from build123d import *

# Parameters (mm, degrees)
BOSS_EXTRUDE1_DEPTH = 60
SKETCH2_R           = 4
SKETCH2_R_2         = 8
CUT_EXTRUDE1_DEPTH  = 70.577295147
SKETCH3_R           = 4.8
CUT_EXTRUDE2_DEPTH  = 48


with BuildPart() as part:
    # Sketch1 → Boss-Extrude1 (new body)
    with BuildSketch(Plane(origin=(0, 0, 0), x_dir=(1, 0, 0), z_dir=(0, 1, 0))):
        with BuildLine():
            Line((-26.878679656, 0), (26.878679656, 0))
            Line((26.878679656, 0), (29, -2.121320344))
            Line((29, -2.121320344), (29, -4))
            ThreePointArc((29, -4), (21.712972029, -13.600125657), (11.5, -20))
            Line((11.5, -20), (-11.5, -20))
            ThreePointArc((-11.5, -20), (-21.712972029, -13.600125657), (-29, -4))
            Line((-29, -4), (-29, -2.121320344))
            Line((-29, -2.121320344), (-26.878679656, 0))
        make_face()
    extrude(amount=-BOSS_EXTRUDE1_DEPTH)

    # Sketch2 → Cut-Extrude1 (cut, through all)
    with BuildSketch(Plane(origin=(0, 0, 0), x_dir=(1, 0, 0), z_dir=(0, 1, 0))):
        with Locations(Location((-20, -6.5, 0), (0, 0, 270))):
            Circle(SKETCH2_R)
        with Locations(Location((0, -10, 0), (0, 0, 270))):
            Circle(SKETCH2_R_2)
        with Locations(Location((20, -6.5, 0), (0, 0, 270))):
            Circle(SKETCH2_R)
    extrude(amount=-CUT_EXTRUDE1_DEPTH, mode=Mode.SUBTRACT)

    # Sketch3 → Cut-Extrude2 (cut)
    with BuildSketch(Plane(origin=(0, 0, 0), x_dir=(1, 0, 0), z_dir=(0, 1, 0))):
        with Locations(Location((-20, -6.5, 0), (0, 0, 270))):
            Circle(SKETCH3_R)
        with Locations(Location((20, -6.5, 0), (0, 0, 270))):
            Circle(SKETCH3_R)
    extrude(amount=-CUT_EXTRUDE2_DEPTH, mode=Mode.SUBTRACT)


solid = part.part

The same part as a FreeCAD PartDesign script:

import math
import FreeCAD as App
import Part
import Sketcher

doc = App.newDocument("Part")
body = doc.addObject("PartDesign::Body", "Body")

sketch1 = body.newObject("Sketcher::SketchObject", "Sketch")
sketch1.AttachmentSupport = (doc.getObject("XZ_Plane"), [""])
sketch1.MapMode = "FlatFace"
sketch1.addGeometry([
    Part.LineSegment(App.Vector(26.87868, 0, 0), App.Vector(-26.87868, 0, 0)),
    Part.LineSegment(App.Vector(-26.87868, 0, 0), App.Vector(-29, 2.12132, 0)),
    Part.LineSegment(App.Vector(-29, 2.12132, 0), App.Vector(-29, 4, 0)),
    Part.ArcOfCircle(Part.Circle(App.Vector(0.891796, -11.12384, 0), App.Vector(0, 0, 1), 33.5), math.radians(111.709719), math.radians(153.16274)),
    Part.LineSegment(App.Vector(-11.5, 20, 0), App.Vector(11.5, 20, 0)),
    Part.ArcOfCircle(Part.Circle(App.Vector(-0.891796, -11.12384, 0), App.Vector(0, 0, 1), 33.5), math.radians(26.83726), math.radians(68.290281)),
    Part.LineSegment(App.Vector(29, 4, 0), App.Vector(29, 2.12132, 0)),
    Part.LineSegment(App.Vector(29, 2.12132, 0), App.Vector(26.87868, 0, 0)),
], False)
sketch1.addConstraint([
    Sketcher.Constraint("Coincident", 0, 2, 1, 1),
    Sketcher.Constraint("Coincident", 1, 2, 2, 1),
    Sketcher.Constraint("Coincident", 2, 2, 3, 2),
    Sketcher.Constraint("Coincident", 3, 1, 4, 1),
    Sketcher.Constraint("Coincident", 4, 2, 5, 2),
    Sketcher.Constraint("Coincident", 5, 1, 6, 1),
    Sketcher.Constraint("Coincident", 6, 2, 7, 1),
    Sketcher.Constraint("Coincident", 7, 2, 0, 1),
    Sketcher.Constraint("Horizontal", 0),
    Sketcher.Constraint("Vertical", 2),
    Sketcher.Constraint("Horizontal", 4),
    Sketcher.Constraint("Vertical", 6),
    Sketcher.Constraint("Equal", 3, 5),
    Sketcher.Constraint("Symmetric", 0, 2, 7, 2, -1, 1),
    Sketcher.Constraint("Symmetric", 3, 3, 5, 3, -2),
    Sketcher.Constraint("Symmetric", 1, 2, 6, 2, -2),
    Sketcher.Constraint("Perpendicular", 1, 7),
    Sketcher.Constraint("Radius", 3, 33.5),
    Sketcher.Constraint("DistanceX", 4, 1, 4, 2, 23.0),
    Sketcher.Constraint("Distance", 1, 3.0),
    Sketcher.Constraint("DistanceX", 1, 2, -1, 1, 29.0),
    Sketcher.Constraint("DistanceY", -1, 1, 2, 2, 4.0),
    Sketcher.Constraint("DistanceY", -1, 1, 3, 1, 20.0),
])
pad1 = body.newObject("PartDesign::Pad", "Pad")
pad1.Profile = sketch1
pad1.Length = 60

sketch2 = body.newObject("Sketcher::SketchObject", "Sketch001")
sketch2.AttachmentSupport = (doc.getObject("XZ_Plane"), [""])
sketch2.MapMode = "FlatFace"
sketch2.addGeometry([
    Part.Circle(App.Vector(-20, 6.5, 0), App.Vector(0, 0, 1), 4),
    Part.Circle(App.Vector(0, 10, 0), App.Vector(0, 0, 1), 8),
    Part.Circle(App.Vector(20, 6.5, 0), App.Vector(0, 0, 1), 4),
], False)
sketch2.addConstraint([
    Sketcher.Constraint("Equal", 0, 2),
    Sketcher.Constraint("Symmetric", 0, 3, 2, 3, -2),
    Sketcher.Constraint("PointOnObject", 1, 3, -2),
    Sketcher.Constraint("Diameter", 0, 8.0),
    Sketcher.Constraint("Diameter", 1, 16.0),
    Sketcher.Constraint("DistanceX", 0, 3, -1, 1, 20.0),
    Sketcher.Constraint("DistanceY", -1, 1, 1, 3, 10.0),
    Sketcher.Constraint("DistanceY", -1, 1, 0, 3, 6.5),
])
pocket1 = body.newObject("PartDesign::Pocket", "Pocket")
pocket1.Profile = sketch2
pocket1.Type = "ThroughAll"
pocket1.Reversed = True

sketch3 = body.newObject("Sketcher::SketchObject", "Sketch002")
sketch3.AttachmentSupport = (doc.getObject("XZ_Plane"), [""])
sketch3.MapMode = "FlatFace"
sketch3.addGeometry([
    Part.Circle(App.Vector(-20, 6.5, 0), App.Vector(0, 0, 1), 4.8),
    Part.Circle(App.Vector(20, 6.5, 0), App.Vector(0, 0, 1), 4.8),
], False)
sketch3.addConstraint([
    Sketcher.Constraint("Equal", 0, 1),
    Sketcher.Constraint("Symmetric", 0, 3, 1, 3, -2),
    Sketcher.Constraint("Diameter", 0, 9.6),
    Sketcher.Constraint("DistanceX", 0, 3, -1, 1, 20.0),
    Sketcher.Constraint("DistanceY", -1, 1, 0, 3, 6.5),
])
pocket2 = body.newObject("PartDesign::Pocket", "Pocket001")
pocket2.Profile = sketch3
pocket2.Length = 48
pocket2.Reversed = True

doc.recompute()
